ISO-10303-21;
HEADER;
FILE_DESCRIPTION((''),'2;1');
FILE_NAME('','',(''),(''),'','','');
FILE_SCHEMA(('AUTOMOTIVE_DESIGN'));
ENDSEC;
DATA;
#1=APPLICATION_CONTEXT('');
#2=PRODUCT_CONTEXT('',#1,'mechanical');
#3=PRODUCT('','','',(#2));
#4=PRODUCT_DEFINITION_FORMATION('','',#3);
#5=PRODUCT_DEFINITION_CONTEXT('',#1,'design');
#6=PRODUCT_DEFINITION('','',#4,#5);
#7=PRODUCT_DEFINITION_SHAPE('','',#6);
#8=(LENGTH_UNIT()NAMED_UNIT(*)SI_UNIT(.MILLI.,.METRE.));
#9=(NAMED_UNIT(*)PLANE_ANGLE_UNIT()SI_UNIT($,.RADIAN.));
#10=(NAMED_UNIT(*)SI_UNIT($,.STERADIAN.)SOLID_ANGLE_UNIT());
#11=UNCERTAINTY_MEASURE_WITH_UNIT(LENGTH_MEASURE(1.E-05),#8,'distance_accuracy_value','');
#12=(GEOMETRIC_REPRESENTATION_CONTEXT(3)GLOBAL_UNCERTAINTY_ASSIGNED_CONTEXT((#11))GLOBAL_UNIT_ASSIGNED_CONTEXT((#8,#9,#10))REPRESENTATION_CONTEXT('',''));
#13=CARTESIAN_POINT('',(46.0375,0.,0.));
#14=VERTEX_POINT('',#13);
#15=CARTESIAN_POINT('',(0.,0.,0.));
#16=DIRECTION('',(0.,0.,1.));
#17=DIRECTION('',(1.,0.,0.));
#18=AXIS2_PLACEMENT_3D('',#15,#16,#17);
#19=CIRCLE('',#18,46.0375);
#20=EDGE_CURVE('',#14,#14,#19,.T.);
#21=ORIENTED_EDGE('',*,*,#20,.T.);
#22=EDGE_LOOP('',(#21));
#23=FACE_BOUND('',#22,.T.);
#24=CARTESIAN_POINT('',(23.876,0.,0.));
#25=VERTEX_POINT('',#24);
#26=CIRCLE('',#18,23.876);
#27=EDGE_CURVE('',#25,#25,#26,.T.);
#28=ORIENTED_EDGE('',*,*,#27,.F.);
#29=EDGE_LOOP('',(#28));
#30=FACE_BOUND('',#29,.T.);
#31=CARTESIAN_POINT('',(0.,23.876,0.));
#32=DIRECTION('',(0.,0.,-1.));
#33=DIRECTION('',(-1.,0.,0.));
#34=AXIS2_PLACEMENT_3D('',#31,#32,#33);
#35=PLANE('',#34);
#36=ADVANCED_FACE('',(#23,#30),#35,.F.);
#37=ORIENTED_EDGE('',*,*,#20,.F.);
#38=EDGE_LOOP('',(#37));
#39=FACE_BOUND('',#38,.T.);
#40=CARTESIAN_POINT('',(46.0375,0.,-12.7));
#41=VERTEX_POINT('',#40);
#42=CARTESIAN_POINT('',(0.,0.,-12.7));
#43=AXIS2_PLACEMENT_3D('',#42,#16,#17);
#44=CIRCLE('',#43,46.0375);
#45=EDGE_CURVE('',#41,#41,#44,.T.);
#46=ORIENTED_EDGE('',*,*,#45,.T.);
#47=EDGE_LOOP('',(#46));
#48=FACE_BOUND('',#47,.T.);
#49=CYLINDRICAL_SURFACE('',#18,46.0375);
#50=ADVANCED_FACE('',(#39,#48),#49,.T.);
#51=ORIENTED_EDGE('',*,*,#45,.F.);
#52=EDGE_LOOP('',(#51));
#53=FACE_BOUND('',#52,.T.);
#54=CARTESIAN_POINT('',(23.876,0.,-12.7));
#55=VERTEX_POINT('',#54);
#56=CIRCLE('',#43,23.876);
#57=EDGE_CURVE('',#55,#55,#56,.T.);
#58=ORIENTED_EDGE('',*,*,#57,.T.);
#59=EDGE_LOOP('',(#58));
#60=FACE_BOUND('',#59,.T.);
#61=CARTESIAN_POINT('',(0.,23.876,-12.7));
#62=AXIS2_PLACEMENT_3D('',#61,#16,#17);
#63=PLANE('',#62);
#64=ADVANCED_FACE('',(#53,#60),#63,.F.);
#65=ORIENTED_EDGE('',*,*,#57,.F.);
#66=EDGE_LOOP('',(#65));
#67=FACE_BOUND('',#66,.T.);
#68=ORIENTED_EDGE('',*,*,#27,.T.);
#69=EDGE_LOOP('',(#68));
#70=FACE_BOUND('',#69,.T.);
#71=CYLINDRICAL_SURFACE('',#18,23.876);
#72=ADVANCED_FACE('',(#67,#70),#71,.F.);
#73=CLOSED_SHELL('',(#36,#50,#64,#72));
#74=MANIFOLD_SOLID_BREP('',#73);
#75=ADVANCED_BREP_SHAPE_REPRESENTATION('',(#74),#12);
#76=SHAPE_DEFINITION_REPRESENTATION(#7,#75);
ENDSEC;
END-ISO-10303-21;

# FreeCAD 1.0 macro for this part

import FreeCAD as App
import Part
import Sketcher
Q = App.Units.Quantity


def add_polygon(sketch, points):
    """Adds a closed chain of lines whose ends are joined by coincident constraints."""
    first, n = sketch.GeometryCount, len(points)
    for a, b in zip(points, points[1:] + points[:1]):
        sketch.addGeometry(Part.LineSegment(App.Vector(*a, 0), App.Vector(*b, 0)), False)
    for i in range(n):
        sketch.addConstraint(Sketcher.Constraint("Coincident", first + i, 2, first + (i + 1) % n, 1))

doc = App.newDocument("Part")
body = doc.addObject("PartDesign::Body", "Body")

# Sketch on YZ plane
sketch1 = body.newObject("Sketcher::SketchObject", "Sketch")
sketch1.AttachmentSupport = (doc.getObject("YZ_Plane"), [""])
sketch1.MapMode = "FlatFace"
add_polygon(sketch1, [(46, 0), (24, 0), (24, -13), (46, -13)])  # lines 0-3
sketch1.addConstraint(Sketcher.Constraint("Horizontal", 0))
sketch1.addConstraint(Sketcher.Constraint("Vertical", 1))
sketch1.addConstraint(Sketcher.Constraint("Horizontal", 2))
sketch1.addConstraint(Sketcher.Constraint("Vertical", 3))
sketch1.addConstraint(Sketcher.Constraint("PointOnObject", 0, 2, -1))
sketch1.addConstraint(Sketcher.Constraint("DistanceY", 1, 2, 1, 1, Q("0.5 in")))
sketch1.addConstraint(Sketcher.Constraint("DistanceX", -1, 1, 0, 2, Q("0.94 in")))
sketch1.addConstraint(Sketcher.Constraint("DistanceX", 0, 2, 0, 1, Q("0.8725 in")))
revolution = body.newObject("PartDesign::Revolution", "Revolution")
revolution.Profile = sketch1
revolution.ReferenceAxis = (sketch1, ["V_Axis"])
revolution.Angle = 360

doc.recompute()
